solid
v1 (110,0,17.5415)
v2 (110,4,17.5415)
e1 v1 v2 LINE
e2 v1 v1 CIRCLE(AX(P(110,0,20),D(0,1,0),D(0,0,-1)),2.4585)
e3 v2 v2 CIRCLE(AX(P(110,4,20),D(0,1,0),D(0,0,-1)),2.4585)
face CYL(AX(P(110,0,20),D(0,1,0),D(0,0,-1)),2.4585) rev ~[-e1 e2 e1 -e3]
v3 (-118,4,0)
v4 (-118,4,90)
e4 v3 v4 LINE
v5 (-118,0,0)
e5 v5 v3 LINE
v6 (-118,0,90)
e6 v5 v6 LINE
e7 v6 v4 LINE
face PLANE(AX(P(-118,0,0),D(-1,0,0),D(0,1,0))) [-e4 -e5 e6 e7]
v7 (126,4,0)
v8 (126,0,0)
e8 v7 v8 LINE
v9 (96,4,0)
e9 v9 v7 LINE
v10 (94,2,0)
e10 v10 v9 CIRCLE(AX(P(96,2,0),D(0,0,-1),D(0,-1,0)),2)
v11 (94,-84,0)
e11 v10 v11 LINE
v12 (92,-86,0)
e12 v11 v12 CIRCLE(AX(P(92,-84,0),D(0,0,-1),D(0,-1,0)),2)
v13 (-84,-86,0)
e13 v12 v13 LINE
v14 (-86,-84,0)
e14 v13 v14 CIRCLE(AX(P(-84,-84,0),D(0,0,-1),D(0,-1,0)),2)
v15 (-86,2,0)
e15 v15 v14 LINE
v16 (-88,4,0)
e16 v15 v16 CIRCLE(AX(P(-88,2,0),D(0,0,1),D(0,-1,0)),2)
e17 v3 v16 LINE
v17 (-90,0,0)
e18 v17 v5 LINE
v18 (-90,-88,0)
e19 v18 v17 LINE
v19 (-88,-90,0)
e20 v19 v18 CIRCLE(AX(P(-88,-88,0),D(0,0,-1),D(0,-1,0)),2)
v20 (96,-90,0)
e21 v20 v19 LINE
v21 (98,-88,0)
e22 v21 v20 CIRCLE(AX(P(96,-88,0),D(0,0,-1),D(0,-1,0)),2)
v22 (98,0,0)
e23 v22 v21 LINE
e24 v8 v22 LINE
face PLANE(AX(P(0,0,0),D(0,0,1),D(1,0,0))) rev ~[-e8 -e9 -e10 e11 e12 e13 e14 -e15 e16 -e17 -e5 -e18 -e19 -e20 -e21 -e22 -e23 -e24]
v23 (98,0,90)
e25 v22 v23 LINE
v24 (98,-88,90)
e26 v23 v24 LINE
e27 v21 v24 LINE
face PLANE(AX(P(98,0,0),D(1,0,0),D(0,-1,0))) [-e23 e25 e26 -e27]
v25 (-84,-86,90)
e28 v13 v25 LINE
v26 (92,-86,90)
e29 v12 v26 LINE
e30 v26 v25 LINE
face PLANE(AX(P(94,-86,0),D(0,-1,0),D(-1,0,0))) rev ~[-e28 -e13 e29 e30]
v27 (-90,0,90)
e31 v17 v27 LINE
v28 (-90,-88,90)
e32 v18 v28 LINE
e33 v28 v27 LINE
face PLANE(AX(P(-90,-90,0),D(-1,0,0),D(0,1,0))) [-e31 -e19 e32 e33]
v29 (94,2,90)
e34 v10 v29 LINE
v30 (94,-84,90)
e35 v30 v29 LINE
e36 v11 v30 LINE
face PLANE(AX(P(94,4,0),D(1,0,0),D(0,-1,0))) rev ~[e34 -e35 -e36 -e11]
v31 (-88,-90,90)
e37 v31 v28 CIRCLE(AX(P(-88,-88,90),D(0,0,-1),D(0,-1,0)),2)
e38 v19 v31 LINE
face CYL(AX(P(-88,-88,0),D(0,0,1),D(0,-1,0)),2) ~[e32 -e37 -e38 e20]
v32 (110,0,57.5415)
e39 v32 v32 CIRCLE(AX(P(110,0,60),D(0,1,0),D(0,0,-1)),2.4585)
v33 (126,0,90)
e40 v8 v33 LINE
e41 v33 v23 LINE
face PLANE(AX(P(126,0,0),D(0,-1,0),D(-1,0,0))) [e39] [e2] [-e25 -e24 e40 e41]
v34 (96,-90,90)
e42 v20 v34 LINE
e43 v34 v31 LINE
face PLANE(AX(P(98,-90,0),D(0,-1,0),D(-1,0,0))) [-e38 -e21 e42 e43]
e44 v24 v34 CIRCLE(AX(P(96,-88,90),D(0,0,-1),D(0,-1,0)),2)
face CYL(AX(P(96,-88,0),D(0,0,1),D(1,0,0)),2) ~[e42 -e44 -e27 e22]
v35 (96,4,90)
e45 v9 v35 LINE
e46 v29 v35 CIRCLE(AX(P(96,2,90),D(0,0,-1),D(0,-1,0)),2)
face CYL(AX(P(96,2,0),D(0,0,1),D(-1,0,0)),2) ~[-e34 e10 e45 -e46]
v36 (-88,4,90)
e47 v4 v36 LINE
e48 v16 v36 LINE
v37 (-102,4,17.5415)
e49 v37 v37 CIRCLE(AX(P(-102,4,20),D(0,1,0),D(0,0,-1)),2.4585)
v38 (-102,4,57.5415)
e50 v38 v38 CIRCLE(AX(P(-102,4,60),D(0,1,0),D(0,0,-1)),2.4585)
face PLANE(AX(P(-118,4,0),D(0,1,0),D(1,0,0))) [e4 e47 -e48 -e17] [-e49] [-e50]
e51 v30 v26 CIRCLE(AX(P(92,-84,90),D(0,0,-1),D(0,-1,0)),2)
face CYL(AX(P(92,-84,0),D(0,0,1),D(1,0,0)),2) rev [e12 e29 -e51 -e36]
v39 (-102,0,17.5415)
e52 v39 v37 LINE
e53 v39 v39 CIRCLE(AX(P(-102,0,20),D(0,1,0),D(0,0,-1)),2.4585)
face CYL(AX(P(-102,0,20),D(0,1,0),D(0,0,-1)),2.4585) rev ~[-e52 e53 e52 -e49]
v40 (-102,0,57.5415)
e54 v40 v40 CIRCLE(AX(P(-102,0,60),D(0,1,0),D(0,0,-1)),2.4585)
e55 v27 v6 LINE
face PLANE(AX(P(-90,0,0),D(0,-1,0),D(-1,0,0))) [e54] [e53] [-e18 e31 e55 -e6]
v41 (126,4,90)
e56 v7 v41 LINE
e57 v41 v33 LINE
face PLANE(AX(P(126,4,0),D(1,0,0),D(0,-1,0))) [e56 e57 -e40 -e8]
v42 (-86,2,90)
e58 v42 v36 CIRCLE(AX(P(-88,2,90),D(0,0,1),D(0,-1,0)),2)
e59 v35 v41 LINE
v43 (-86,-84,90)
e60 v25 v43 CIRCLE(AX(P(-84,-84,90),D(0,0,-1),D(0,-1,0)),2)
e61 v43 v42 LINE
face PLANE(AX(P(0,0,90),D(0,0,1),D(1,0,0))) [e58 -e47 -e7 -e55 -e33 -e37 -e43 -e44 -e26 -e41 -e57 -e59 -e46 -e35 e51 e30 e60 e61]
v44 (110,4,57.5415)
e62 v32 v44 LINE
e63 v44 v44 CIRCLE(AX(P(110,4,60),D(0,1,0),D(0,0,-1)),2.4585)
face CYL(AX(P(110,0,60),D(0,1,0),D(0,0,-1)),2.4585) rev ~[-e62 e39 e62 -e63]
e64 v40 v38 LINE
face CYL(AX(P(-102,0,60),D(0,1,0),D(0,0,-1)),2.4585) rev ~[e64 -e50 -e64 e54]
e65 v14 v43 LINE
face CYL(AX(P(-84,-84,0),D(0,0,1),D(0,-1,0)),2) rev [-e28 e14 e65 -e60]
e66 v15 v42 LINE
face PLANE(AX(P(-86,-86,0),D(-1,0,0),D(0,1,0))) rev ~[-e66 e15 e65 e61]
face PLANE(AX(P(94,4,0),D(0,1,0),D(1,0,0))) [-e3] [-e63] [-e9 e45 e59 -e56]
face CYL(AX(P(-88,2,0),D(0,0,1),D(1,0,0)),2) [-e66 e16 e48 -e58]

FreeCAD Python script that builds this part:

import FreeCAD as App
import Part
import Sketcher

V = App.Vector
Q = App.Units.Quantity


def edges_at(feature, points):
    """Names of the edges that pass closest to the given points."""
    edges = feature.Shape.Edges
    near = lambda p: min(range(len(edges)), key=lambda i: edges[i].distToShape(Part.Vertex(*p))[0])
    return sorted({f"Edge{near(p) + 1}" for p in points})


def add_polygon(sketch, points):
    """Adds a closed chain of lines whose ends are joined by coincident constraints."""
    first, n = sketch.GeometryCount, len(points)
    for a, b in zip(points, points[1:] + points[:1]):
        sketch.addGeometry(Part.LineSegment(App.Vector(*a, 0), App.Vector(*b, 0)), False)
    for i in range(n):
        sketch.addConstraint(Sketcher.Constraint("Coincident", first + i, 2, first + (i + 1) % n, 1))

doc = App.newDocument("Part")
params = doc.addObject("Spreadsheet::Sheet", "Params")
for row, (alias, value) in enumerate([
    ("sketch1_width", "180 mm"),
    ("sketch1_width2", "32 mm"),
    ("sketch1_width3", "188 mm"),
    ("sketch1_height", "90 mm"),
    ("sketch1_height2", "4 mm"),
    ("pad1_length", "90 mm"),
    ("fillet_radius", "2 mm"),
    ("fillet2_radius", "2 mm"),
    ("hole_diameter", "4.917 mm"),
], start=1):
    params.set(f"A{row}", alias)
    params.set(f"B{row}", "=" + value)
    params.setAlias(f"B{row}", alias)

body = doc.addObject("PartDesign::Body", "Body")

# Sketch on XY plane
sketch1 = body.newObject("Sketcher::SketchObject", "Sketch")
sketch1.AttachmentSupport = (doc.getObject("XY_Plane"), [""])
sketch1.MapMode = "FlatFace"
add_polygon(sketch1, [(94, 4), (94, -86), (-86, -86), (-86, 4), (-118, 4), (-118, 0), (-90, 0), (-90, -90), (98, -90), (98, 0), (126, 0), (126, 4)])  # lines 0-11
sketch1.addConstraint(Sketcher.Constraint("Vertical", 0))
sketch1.addConstraint(Sketcher.Constraint("Horizontal", 1))
sketch1.addConstraint(Sketcher.Constraint("Vertical", 2))
sketch1.addConstraint(Sketcher.Constraint("Horizontal", 3))
sketch1.addConstraint(Sketcher.Constraint("Vertical", 4))
sketch1.addConstraint(Sketcher.Constraint("Horizontal", 5))
sketch1.addConstraint(Sketcher.Constraint("Vertical", 6))
sketch1.addConstraint(Sketcher.Constraint("Horizontal", 7))
sketch1.addConstraint(Sketcher.Constraint("Vertical", 8))
sketch1.addConstraint(Sketcher.Constraint("Horizontal", 9))
sketch1.addConstraint(Sketcher.Constraint("Vertical", 10))
sketch1.addConstraint(Sketcher.Constraint("Horizontal", 11))
sketch1.addConstraint(Sketcher.Constraint("PointOnObject", 4, 2, -1))
sketch1.addConstraint(Sketcher.Constraint("PointOnObject", 8, 2, -1))
sketch1.addConstraint(Sketcher.Constraint("Horizontal", 3, 2, 10, 2))
sketch1.addConstraint(Sketcher.Constraint("Equal", 5, 9))
sketch1.addConstraint(Sketcher.Constraint("Equal", 3, 11))
sketch1.addConstraint(Sketcher.Constraint("Equal", 2, 6))
sketch1.addConstraint(Sketcher.Constraint("DistanceX", 1, 2, 1, 1, Q("180 mm")))
sketch1.addConstraint(Sketcher.Constraint("DistanceX", 3, 2, 3, 1, Q("32 mm")))
sketch1.addConstraint(Sketcher.Constraint("DistanceX", 7, 1, 7, 2, Q("188 mm")))
sketch1.addConstraint(Sketcher.Constraint("DistanceY", 0, 2, 0, 1, Q("90 mm")))
sketch1.addConstraint(Sketcher.Constraint("DistanceY", 4, 2, 4, 1, Q("4 mm")))
sketch1.addConstraint(Sketcher.Constraint("DistanceX", 5, 2, -1, 1, Q("90 mm")))
sketch1.setExpression("Constraints[30]", "Params.sketch1_width")
sketch1.setExpression("Constraints[31]", "Params.sketch1_width2")
sketch1.setExpression("Constraints[32]", "Params.sketch1_width3")
sketch1.setExpression("Constraints[33]", "Params.sketch1_height")
sketch1.setExpression("Constraints[34]", "Params.sketch1_height2")
pad1 = body.newObject("PartDesign::Pad", "Pad")
pad1.Profile = sketch1
pad1.setExpression("Length", "Params.pad1_length")
doc.recompute()

fillet = body.newObject("PartDesign::Fillet", "Fillet")
fillet.Base = (pad1, edges_at(pad1, [
    (-86, -86, 45),
    (-86, 4, 45),
    (94, 4, 45),
    (98, -90, 45),
]))
fillet.setExpression("Radius", "Params.fillet_radius")
doc.recompute()

fillet2 = body.newObject("PartDesign::Fillet", "Fillet001")
fillet2.Base = (fillet, edges_at(fillet, [(-90, -90, 45), (94, -86, 45)]))
fillet2.setExpression("Radius", "Params.fillet2_radius")

# Sketch on XZ plane
sketch2 = body.newObject("Sketcher::SketchObject", "Sketch001")
sketch2.AttachmentSupport = (doc.getObject("XZ_Plane"), [""])
sketch2.MapMode = "FlatFace"
sketch2.addGeometry(Part.Circle(V(-102, 20, 0), V(0, 0, 1), 2.5), False)
sketch2.addGeometry(Part.Circle(V(-102, 60, 0), V(0, 0, 1), 2.5), False)
sketch2.addGeometry(Part.Circle(V(110, 20, 0), V(0, 0, 1), 2.5), False)
sketch2.addGeometry(Part.Circle(V(110, 60, 0), V(0, 0, 1), 2.5), False)
sketch2.addConstraint(Sketcher.Constraint("Equal", 0, 1))
sketch2.addConstraint(Sketcher.Constraint("Equal", 1, 2))
sketch2.addConstraint(Sketcher.Constraint("Equal", 2, 3))
sketch2.addConstraint(Sketcher.Constraint("Horizontal", 0, 3, 2, 3))
sketch2.addConstraint(Sketcher.Constraint("Horizontal", 1, 3, 3, 3))
sketch2.addConstraint(Sketcher.Constraint("Vertical", 0, 3, 1, 3))
sketch2.addConstraint(Sketcher.Constraint("Vertical", 2, 3, 3, 3))
sketch2.addConstraint(Sketcher.Constraint("Diameter", 0, Q("4.917 mm")))
sketch2.addConstraint(Sketcher.Constraint("DistanceX", 0, 3, -1, 1, Q("102 mm")))
sketch2.addConstraint(Sketcher.Constraint("DistanceY", -1, 1, 0, 3, Q("20 mm")))
sketch2.addConstraint(Sketcher.Constraint("DistanceY", -1, 1, 1, 3, Q("60 mm")))
sketch2.addConstraint(Sketcher.Constraint("DistanceX", -1, 1, 2, 3, Q("110 mm")))
doc.recompute()
hole = body.newObject("PartDesign::Hole", "Hole")
hole.Profile = sketch2
hole.ThreadType = "None"
hole.setExpression("Diameter", "Params.hole_diameter")
hole.DepthType = "ThroughAll"

doc.recompute()
